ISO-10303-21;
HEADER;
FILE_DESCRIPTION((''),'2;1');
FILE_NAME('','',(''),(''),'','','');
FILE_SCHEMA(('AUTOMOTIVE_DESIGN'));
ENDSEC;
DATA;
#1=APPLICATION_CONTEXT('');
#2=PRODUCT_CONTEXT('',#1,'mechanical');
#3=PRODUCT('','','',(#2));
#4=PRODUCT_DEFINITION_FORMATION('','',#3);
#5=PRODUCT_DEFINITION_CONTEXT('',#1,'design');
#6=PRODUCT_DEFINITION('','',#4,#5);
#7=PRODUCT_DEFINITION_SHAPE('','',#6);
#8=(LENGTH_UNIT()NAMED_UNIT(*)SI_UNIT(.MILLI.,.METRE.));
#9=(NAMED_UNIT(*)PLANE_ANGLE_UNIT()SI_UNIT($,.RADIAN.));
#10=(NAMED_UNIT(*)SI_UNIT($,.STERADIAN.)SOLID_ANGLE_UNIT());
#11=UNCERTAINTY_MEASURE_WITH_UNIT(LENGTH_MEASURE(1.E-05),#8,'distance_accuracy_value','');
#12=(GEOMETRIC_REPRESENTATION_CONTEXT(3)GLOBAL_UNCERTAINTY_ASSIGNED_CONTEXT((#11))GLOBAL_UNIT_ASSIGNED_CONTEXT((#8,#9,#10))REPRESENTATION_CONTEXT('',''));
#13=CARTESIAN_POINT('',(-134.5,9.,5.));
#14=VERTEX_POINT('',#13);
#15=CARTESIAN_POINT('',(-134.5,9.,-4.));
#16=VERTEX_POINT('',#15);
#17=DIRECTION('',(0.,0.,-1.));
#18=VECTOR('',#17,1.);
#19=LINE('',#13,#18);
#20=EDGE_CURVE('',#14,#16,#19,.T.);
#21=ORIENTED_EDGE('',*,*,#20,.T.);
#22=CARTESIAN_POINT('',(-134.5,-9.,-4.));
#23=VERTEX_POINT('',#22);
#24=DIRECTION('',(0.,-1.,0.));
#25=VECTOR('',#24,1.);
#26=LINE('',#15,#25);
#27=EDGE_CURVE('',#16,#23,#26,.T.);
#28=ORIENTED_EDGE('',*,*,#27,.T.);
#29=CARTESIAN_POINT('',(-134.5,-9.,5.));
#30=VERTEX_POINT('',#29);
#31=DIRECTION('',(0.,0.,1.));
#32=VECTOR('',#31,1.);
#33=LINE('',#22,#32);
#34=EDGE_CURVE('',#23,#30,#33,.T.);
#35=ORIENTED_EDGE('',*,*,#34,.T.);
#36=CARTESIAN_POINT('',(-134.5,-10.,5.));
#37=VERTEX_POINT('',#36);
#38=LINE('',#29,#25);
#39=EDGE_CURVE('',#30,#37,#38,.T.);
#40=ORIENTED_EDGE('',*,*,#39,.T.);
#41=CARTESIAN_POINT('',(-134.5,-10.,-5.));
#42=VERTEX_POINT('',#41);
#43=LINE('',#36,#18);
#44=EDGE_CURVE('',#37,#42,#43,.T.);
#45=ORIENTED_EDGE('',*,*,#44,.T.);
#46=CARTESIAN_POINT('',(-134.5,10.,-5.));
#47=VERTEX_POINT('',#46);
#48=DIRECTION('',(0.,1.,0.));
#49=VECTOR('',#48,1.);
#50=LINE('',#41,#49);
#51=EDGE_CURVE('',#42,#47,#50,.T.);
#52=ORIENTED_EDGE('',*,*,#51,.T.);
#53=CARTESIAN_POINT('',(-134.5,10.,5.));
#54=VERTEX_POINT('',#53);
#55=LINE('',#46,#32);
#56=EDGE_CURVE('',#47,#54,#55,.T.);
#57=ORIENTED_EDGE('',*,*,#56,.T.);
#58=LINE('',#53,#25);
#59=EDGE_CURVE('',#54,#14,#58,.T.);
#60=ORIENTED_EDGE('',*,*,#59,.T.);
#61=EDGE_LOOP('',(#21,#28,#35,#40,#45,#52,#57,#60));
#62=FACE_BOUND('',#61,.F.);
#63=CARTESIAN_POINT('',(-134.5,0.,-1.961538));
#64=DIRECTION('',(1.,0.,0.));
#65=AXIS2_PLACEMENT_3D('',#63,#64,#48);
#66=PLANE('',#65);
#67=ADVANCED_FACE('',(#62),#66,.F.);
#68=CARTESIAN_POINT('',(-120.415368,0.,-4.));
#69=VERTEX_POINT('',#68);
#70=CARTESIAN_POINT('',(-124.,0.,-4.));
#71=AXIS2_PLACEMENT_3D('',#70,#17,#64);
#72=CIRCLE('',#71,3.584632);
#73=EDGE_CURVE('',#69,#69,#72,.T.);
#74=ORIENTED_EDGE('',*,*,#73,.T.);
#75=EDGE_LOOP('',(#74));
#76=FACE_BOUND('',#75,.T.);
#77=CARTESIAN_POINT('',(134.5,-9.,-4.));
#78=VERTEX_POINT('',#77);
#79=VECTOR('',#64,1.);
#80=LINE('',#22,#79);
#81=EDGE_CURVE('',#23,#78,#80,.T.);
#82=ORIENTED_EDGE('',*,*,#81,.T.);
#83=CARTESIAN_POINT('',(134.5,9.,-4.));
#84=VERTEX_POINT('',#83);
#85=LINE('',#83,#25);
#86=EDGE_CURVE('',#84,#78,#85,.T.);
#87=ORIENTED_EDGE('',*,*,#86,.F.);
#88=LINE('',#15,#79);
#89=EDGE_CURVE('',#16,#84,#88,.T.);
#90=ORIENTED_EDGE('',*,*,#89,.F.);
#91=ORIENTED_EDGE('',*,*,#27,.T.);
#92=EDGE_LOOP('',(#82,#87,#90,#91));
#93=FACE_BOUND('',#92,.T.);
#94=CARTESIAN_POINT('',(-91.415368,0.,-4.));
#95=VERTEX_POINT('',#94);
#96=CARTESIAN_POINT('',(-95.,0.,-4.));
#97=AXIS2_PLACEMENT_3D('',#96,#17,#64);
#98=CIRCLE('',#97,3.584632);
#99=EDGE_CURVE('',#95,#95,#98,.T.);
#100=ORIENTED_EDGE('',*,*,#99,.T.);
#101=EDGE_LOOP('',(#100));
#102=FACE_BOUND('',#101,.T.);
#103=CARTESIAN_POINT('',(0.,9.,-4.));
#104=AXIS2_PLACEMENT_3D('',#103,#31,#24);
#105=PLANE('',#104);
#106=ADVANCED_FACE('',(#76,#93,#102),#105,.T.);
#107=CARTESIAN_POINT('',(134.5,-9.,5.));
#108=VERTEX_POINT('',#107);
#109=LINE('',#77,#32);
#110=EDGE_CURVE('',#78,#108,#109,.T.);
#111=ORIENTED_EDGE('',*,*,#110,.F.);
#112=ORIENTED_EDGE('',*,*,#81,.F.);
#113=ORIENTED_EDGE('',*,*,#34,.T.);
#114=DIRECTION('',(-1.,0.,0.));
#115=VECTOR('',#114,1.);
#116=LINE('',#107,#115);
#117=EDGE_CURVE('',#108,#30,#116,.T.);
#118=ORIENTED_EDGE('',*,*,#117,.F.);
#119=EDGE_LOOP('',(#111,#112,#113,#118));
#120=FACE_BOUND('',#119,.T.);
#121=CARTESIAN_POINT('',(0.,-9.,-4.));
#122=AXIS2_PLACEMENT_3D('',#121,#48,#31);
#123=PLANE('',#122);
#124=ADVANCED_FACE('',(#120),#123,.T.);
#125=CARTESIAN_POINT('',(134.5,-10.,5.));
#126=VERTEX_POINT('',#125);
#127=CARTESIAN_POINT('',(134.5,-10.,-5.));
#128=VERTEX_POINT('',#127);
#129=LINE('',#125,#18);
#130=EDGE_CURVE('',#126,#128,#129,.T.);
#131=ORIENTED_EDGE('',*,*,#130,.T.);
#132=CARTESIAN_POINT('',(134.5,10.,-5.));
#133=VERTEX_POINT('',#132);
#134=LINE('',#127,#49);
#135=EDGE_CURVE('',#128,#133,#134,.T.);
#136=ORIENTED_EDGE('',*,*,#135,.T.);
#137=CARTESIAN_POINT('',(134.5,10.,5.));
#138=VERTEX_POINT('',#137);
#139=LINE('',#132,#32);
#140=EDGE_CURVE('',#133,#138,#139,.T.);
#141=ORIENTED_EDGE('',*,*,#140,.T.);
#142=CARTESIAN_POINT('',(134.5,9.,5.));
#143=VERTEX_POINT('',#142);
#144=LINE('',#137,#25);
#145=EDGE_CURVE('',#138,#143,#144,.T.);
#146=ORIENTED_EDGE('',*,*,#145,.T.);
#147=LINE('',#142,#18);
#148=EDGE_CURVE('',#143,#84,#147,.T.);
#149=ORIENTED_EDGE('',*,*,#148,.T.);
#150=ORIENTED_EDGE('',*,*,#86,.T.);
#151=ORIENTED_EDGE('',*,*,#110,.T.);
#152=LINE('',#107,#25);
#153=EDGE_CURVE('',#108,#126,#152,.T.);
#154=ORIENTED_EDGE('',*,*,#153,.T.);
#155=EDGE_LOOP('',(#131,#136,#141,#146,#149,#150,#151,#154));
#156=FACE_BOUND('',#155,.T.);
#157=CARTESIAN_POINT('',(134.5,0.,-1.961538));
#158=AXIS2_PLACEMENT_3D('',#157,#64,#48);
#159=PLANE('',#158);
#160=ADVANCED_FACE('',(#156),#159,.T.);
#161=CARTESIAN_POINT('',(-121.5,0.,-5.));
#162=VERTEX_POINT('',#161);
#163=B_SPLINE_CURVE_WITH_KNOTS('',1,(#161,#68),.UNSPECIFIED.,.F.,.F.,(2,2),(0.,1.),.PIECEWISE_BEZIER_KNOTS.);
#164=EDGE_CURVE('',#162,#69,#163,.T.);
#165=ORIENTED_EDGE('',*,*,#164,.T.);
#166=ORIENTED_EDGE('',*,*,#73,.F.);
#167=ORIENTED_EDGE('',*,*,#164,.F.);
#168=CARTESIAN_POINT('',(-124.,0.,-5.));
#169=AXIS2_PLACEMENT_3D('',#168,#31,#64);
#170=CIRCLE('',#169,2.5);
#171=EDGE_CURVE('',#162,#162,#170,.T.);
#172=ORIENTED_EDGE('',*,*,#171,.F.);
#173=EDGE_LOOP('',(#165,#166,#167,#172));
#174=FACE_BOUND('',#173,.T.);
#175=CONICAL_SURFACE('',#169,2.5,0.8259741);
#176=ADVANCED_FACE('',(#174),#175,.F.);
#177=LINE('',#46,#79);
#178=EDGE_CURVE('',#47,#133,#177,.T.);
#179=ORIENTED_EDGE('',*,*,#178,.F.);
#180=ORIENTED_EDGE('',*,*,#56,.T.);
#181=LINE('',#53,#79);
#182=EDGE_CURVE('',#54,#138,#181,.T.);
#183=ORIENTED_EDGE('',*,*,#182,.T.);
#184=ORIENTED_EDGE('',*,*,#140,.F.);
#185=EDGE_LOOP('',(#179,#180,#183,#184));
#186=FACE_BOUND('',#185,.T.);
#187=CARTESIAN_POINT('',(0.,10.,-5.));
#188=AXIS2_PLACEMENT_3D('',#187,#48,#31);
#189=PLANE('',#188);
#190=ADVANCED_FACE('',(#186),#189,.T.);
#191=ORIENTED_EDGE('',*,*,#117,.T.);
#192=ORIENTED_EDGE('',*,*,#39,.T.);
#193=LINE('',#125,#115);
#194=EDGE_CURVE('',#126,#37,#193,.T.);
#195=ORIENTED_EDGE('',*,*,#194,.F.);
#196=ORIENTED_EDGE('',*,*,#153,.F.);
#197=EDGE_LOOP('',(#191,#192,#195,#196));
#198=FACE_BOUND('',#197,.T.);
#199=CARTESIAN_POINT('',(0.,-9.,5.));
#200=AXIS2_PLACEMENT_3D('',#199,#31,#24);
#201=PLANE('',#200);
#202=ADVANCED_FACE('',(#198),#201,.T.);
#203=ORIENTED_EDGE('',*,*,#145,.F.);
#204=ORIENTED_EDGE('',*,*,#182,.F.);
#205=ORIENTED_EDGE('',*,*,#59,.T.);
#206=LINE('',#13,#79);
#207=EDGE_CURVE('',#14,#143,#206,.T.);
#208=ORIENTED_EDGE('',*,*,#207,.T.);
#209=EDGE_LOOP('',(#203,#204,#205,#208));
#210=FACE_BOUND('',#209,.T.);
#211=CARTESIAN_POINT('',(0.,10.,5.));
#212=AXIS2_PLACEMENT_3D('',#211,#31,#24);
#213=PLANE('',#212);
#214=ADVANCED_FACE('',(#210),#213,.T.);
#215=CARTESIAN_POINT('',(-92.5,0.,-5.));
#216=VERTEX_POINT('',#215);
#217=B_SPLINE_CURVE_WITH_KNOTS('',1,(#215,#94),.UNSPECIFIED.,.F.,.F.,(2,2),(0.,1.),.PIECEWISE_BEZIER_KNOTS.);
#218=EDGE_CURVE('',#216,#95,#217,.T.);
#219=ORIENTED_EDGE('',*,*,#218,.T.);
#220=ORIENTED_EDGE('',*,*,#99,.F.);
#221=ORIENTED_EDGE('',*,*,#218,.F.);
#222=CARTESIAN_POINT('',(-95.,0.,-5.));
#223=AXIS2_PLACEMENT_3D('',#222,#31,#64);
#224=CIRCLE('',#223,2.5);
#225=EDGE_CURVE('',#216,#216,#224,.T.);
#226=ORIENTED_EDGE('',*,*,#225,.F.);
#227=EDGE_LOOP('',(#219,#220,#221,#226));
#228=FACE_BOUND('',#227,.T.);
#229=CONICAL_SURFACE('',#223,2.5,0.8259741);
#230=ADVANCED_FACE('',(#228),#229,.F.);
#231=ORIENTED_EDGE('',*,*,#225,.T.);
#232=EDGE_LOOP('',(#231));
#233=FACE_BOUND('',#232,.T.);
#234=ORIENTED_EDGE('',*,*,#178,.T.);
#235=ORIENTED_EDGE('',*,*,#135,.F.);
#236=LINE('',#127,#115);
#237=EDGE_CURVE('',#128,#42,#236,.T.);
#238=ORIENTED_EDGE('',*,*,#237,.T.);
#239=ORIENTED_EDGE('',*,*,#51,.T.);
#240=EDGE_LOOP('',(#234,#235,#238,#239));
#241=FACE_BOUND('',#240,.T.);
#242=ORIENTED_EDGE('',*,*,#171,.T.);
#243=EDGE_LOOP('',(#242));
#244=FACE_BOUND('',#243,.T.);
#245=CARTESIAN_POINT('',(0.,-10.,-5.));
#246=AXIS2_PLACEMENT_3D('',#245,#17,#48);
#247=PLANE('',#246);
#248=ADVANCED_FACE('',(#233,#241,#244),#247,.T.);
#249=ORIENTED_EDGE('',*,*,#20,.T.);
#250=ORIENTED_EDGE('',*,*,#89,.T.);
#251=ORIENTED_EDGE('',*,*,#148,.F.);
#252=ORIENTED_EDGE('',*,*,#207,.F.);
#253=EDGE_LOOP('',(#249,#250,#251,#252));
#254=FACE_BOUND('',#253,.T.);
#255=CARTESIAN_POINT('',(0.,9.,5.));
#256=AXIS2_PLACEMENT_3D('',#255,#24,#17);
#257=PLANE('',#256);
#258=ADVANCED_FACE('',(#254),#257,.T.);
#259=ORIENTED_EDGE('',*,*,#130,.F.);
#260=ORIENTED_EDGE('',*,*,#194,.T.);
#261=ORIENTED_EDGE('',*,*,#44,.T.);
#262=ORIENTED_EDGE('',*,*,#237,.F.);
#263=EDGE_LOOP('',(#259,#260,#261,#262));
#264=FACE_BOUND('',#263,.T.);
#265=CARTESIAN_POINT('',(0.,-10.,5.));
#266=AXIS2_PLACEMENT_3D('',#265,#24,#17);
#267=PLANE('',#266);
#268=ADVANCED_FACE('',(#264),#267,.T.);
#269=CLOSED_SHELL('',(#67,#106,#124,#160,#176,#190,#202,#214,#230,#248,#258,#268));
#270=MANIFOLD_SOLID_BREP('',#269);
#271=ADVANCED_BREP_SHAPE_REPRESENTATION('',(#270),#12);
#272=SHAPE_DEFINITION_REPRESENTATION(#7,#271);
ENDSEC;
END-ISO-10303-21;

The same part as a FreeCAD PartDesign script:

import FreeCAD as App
import Part
import Sketcher
Q = App.Units.Quantity

doc = App.newDocument("Part")
body = doc.addObject("PartDesign::Body", "Body")

sketch1 = body.newObject("Sketcher::SketchObject", "Sketch")
sketch1.AttachmentSupport = (doc.getObject("YZ_Plane"), [""])
sketch1.MapMode = "FlatFace"
sketch1.addGeometry([
    Part.LineSegment(App.Vector(-10, -5, 0), App.Vector(10, -5, 0)),
    Part.LineSegment(App.Vector(10, -5, 0), App.Vector(10, 5, 0)),
    Part.LineSegment(App.Vector(10, 5, 0), App.Vector(9, 5, 0)),
    Part.LineSegment(App.Vector(9, 5, 0), App.Vector(9, -4, 0)),
    Part.LineSegment(App.Vector(9, -4, 0), App.Vector(-9, -4, 0)),
    Part.LineSegment(App.Vector(-9, -4, 0), App.Vector(-9, 5, 0)),
    Part.LineSegment(App.Vector(-9, 5, 0), App.Vector(-10, 5, 0)),
    Part.LineSegment(App.Vector(-10, 5, 0), App.Vector(-10, -5, 0)),
], False)
sketch1.addConstraint([
    Sketcher.Constraint("Coincident", 0, 2, 1, 1),
    Sketcher.Constraint("Coincident", 1, 2, 2, 1),
    Sketcher.Constraint("Coincident", 2, 2, 3, 1),
    Sketcher.Constraint("Coincident", 3, 2, 4, 1),
    Sketcher.Constraint("Coincident", 4, 2, 5, 1),
    Sketcher.Constraint("Coincident", 5, 2, 6, 1),
    Sketcher.Constraint("Coincident", 6, 2, 7, 1),
    Sketcher.Constraint("Coincident", 7, 2, 0, 1),
    Sketcher.Constraint("Horizontal", 0),
    Sketcher.Constraint("Vertical", 1),
    Sketcher.Constraint("Horizontal", 2),
    Sketcher.Constraint("Vertical", 3),
    Sketcher.Constraint("Horizontal", 4),
    Sketcher.Constraint("Vertical", 5),
    Sketcher.Constraint("Horizontal", 6),
    Sketcher.Constraint("Vertical", 7),
    Sketcher.Constraint("Symmetric", 0, 2, 6, 2, -1, 1),
    Sketcher.Constraint("Symmetric", 2, 2, 5, 2, -2),
    Sketcher.Constraint("DistanceX", 0, 1, 0, 2, Q("20 mm")),
    Sketcher.Constraint("DistanceX", 2, 2, 2, 1, Q("1 mm")),
    Sketcher.Constraint("DistanceY", 1, 1, 1, 2, Q("10 mm")),
    Sketcher.Constraint("DistanceY", 3, 2, 3, 1, Q("9 mm")),
])
pad1 = body.newObject("PartDesign::Pad", "Pad")
pad1.Profile = sketch1
pad1.Type = "TwoLengths"
pad1.Length = 134.5
pad1.Length2 = 134.5

sketch2 = body.newObject("Sketcher::SketchObject", "Sketch001")
sketch2.AttachmentSupport = (doc.getObject("XY_Plane"), [""])
sketch2.MapMode = "FlatFace"
sketch2.AttachmentOffset = App.Placement(App.Vector(0, 0, -5), App.Rotation())
sketch2.addGeometry([
    Part.Circle(App.Vector(-124, 0, 0), App.Vector(0, 0, 1), 2.5),
    Part.Circle(App.Vector(-95, 0, 0), App.Vector(0, 0, 1), 2.5),
], False)
sketch2.addConstraint([
    Sketcher.Constraint("Equal", 0, 1),
    Sketcher.Constraint("PointOnObject", 0, 3, -1),
    Sketcher.Constraint("PointOnObject", 1, 3, -1),
    Sketcher.Constraint("Diameter", 0, Q("5 mm")),
    Sketcher.Constraint("DistanceX", 0, 3, -1, 1, Q("124 mm")),
    Sketcher.Constraint("DistanceX", 1, 3, -1, 1, Q("95 mm")),
])
pocket1 = body.newObject("PartDesign::Pocket", "Pocket")
pocket1.Profile = sketch2
pocket1.Length = 1
pocket1.Reversed = True
pocket1.TaperAngle = 47.32483

doc.recompute()
